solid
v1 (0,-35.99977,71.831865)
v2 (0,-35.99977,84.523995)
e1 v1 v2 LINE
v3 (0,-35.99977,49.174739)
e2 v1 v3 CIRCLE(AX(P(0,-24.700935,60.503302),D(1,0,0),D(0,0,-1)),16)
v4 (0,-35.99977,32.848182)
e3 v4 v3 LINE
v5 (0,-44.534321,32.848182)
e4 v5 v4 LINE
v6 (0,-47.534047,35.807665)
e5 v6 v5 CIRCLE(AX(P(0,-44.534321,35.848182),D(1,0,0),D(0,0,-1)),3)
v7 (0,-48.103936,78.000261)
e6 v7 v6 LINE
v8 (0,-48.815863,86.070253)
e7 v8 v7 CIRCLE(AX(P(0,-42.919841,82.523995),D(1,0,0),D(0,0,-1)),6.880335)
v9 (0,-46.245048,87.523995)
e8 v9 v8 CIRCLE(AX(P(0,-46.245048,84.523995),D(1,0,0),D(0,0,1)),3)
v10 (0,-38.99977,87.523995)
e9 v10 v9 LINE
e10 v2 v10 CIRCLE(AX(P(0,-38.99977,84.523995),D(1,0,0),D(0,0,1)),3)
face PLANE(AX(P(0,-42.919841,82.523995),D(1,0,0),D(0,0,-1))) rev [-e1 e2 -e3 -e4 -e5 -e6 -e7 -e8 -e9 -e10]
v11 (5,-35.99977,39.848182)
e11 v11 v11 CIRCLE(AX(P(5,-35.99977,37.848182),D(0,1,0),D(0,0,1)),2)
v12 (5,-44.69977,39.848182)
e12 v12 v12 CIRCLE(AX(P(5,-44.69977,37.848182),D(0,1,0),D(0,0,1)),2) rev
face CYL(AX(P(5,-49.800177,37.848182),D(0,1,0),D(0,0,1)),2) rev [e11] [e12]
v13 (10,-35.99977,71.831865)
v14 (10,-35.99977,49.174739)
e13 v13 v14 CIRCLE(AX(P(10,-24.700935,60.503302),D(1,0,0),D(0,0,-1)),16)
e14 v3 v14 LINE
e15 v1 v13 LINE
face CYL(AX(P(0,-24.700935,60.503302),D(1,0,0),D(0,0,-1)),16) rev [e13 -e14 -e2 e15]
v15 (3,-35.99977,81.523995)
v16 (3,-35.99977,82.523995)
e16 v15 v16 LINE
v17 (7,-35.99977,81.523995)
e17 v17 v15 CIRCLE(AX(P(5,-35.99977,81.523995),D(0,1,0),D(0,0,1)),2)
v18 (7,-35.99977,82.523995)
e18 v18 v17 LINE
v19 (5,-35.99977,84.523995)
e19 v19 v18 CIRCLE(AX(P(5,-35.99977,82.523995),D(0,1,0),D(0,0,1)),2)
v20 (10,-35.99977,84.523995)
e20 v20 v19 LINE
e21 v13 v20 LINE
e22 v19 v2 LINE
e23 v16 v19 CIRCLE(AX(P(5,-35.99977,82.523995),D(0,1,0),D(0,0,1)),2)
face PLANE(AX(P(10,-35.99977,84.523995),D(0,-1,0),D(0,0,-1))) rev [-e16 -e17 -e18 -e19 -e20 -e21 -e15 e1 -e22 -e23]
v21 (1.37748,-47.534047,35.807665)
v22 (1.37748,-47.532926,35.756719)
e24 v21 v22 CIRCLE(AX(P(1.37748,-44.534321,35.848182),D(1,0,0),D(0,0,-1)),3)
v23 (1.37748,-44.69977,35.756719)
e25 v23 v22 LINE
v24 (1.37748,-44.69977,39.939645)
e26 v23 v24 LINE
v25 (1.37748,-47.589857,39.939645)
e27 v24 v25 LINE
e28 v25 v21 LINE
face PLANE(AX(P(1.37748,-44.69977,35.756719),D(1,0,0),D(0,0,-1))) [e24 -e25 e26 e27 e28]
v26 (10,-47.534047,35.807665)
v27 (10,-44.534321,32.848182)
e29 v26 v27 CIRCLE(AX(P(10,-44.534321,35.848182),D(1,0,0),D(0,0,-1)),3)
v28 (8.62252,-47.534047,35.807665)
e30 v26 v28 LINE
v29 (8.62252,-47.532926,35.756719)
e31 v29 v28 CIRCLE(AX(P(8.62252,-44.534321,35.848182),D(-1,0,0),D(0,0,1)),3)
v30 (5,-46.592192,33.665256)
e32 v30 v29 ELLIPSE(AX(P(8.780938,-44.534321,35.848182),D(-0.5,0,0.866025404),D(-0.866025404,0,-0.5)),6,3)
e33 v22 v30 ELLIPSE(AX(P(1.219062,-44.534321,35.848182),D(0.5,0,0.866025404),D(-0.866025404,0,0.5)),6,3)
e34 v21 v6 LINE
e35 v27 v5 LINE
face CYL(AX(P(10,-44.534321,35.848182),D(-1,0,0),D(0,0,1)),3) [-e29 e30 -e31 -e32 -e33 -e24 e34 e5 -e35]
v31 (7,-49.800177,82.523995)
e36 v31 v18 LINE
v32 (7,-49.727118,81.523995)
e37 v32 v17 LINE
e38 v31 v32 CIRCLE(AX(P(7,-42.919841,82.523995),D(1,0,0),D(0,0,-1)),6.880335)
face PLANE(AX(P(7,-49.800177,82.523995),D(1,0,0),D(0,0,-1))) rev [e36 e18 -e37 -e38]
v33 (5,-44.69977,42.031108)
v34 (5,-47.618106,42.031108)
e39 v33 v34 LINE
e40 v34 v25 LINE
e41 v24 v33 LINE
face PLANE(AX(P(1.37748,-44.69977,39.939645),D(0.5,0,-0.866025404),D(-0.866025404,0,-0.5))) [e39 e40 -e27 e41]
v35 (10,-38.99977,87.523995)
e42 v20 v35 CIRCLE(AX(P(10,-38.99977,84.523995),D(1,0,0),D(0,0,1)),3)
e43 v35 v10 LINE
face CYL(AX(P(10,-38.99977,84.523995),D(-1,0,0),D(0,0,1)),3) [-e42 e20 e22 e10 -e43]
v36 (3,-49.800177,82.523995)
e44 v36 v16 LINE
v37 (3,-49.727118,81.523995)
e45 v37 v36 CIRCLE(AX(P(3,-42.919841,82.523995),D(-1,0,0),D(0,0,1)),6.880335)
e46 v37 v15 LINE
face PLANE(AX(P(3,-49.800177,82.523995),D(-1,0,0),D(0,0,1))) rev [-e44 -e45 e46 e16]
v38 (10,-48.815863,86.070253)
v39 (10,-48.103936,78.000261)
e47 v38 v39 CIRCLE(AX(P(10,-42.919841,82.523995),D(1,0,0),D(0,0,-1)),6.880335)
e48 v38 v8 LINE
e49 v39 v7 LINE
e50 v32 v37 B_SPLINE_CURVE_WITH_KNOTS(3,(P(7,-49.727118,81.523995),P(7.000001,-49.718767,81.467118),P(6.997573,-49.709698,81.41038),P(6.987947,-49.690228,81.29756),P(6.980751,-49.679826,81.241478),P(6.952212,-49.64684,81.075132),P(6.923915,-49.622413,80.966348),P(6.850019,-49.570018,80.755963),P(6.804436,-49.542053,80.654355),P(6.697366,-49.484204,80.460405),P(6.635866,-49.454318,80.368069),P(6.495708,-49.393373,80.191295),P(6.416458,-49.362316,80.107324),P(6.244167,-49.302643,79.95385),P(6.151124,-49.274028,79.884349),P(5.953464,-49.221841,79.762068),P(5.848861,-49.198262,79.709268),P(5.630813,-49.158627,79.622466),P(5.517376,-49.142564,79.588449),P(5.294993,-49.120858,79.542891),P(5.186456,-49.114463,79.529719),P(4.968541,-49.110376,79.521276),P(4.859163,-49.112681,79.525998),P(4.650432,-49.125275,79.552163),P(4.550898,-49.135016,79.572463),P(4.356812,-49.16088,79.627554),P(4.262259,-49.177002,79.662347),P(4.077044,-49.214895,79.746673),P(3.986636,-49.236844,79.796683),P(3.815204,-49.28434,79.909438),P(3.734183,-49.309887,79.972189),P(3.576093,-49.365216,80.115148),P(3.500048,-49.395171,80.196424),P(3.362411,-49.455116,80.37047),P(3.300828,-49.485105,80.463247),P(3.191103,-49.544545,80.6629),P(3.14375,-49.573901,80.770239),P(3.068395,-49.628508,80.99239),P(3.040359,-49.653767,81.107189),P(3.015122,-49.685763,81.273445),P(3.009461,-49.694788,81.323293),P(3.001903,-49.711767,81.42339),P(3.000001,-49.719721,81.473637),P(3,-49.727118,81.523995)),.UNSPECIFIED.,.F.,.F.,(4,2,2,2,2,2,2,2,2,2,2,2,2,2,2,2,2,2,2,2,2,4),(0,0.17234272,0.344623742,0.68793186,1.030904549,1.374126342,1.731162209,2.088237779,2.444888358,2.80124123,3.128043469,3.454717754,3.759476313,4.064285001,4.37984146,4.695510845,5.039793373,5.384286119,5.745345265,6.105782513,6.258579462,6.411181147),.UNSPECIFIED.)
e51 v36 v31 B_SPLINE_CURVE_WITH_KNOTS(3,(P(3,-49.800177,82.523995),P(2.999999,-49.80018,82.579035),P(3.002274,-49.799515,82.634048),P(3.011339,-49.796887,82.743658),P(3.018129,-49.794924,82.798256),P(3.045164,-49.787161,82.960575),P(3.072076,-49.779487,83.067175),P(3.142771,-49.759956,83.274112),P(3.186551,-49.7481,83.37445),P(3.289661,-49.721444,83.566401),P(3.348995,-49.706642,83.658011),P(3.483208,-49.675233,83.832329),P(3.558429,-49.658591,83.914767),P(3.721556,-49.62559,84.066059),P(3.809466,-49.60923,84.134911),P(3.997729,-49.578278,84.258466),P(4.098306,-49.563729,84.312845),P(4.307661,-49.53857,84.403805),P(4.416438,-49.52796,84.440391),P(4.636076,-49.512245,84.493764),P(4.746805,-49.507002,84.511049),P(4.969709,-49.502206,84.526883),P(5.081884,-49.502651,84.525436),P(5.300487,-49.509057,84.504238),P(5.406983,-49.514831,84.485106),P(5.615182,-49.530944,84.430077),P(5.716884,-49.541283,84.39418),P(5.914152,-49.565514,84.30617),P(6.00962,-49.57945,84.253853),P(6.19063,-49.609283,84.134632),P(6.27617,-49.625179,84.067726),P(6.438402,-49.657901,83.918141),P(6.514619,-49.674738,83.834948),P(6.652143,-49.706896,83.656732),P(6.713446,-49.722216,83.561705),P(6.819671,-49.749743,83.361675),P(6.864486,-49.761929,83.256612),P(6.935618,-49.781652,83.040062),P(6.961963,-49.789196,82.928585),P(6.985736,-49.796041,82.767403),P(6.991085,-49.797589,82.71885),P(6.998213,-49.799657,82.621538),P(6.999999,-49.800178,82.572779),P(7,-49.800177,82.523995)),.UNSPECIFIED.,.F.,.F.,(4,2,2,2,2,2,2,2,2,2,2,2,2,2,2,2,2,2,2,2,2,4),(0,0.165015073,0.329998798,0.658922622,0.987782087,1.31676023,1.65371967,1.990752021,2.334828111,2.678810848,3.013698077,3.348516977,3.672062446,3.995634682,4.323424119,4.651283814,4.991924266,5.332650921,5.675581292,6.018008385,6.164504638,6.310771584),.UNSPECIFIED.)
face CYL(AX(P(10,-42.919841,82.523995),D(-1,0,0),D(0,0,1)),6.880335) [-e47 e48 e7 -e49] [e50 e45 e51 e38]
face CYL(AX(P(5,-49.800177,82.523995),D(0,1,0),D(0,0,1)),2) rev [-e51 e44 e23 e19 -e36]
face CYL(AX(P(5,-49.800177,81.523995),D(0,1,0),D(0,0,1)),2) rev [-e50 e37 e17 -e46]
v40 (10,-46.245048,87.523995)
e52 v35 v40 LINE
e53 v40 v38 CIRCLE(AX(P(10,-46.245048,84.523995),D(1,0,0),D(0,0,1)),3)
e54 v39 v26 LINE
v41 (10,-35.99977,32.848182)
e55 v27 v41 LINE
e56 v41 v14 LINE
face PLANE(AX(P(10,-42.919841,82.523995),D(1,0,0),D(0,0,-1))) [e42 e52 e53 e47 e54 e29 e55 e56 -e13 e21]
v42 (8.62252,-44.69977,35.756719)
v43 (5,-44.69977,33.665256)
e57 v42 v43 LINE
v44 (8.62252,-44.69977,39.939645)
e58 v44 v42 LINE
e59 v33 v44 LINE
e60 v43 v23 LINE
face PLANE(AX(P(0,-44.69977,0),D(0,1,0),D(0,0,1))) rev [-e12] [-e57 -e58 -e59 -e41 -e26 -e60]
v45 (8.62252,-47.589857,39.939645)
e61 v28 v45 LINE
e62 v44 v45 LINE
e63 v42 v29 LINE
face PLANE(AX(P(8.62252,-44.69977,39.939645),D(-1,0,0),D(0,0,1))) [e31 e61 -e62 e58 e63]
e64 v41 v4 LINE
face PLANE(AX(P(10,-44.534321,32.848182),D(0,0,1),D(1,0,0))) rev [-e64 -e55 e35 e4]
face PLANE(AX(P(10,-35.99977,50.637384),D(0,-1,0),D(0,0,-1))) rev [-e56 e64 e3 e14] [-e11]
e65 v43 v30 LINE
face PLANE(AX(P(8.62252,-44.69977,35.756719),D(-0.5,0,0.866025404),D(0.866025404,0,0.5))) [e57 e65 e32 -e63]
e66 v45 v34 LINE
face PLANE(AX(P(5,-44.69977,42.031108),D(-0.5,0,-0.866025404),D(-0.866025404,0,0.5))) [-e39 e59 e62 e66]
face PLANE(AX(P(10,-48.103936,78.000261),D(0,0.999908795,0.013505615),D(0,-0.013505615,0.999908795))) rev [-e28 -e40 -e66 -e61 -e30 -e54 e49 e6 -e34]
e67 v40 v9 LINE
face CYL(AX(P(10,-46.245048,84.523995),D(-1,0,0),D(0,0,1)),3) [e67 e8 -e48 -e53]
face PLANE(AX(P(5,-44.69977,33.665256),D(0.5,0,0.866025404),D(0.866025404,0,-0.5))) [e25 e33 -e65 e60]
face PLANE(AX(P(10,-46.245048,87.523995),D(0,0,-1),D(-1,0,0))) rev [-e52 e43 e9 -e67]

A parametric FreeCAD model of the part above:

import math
import FreeCAD as App
import Part
import Sketcher
Q = App.Units.Quantity

doc = App.newDocument("Part")
body = doc.addObject("PartDesign::Body", "Body")

sketch1 = body.newObject("Sketcher::SketchObject", "Sketch")
sketch1.AttachmentSupport = (doc.getObject("YZ_Plane"), [""])
sketch1.MapMode = "FlatFace"
sketch1.addGeometry(Part.LineSegment(App.Vector(-39, 87.5, 0), App.Vector(-46.2, 87.5, 0)), False)
sketch1.addGeometry(Part.ArcOfCircle(Part.Circle(App.Vector(-46.2, 84.5, 0), App.Vector(0, 0, 1), 3), math.radians(90), math.radians(149)), False)
sketch1.addGeometry(Part.ArcOfCircle(Part.Circle(App.Vector(-42.9, 82.5, 0), App.Vector(0, 0, 1), 6.9), math.radians(149), math.radians(221)), False)
sketch1.addGeometry(Part.LineSegment(App.Vector(-48.1, 78, 0), App.Vector(-47.5, 35.8, 0)), False)
sketch1.addGeometry(Part.ArcOfCircle(Part.Circle(App.Vector(-44.5, 35.8, 0), App.Vector(0, 0, 1), 3), math.radians(-179), math.radians(-90)), False)
sketch1.addGeometry(Part.LineSegment(App.Vector(-44.5, 32.8, 0), App.Vector(-36, 32.8, 0)), False)
sketch1.addGeometry(Part.LineSegment(App.Vector(-36, 32.8, 0), App.Vector(-36, 50.6, 0)), False)
sketch1.addGeometry(Part.ArcOfCircle(Part.Circle(App.Vector(-24.7, 60.5, 0), App.Vector(0, 0, 1), 15), math.radians(139), math.radians(221)), False)
sketch1.addGeometry(Part.LineSegment(App.Vector(-36, 70.4, 0), App.Vector(-36, 84.5, 0)), False)
sketch1.addGeometry(Part.ArcOfCircle(Part.Circle(App.Vector(-39, 84.5, 0), App.Vector(0, 0, 1), 3), math.radians(0), math.radians(90)), False)
sketch1.addConstraint(Sketcher.Constraint("Tangent", 0, 2, 1, 1))
sketch1.addConstraint(Sketcher.Constraint("Tangent", 1, 2, 2, 1))
sketch1.addConstraint(Sketcher.Constraint("Coincident", 2, 2, 3, 1))
sketch1.addConstraint(Sketcher.Constraint("Tangent", 3, 2, 4, 1))
sketch1.addConstraint(Sketcher.Constraint("Tangent", 4, 2, 5, 1))
sketch1.addConstraint(Sketcher.Constraint("Coincident", 5, 2, 6, 1))
sketch1.addConstraint(Sketcher.Constraint("Coincident", 6, 2, 7, 2))
sketch1.addConstraint(Sketcher.Constraint("Coincident", 7, 1, 8, 1))
sketch1.addConstraint(Sketcher.Constraint("Tangent", 8, 2, 9, 1))
sketch1.addConstraint(Sketcher.Constraint("Tangent", 9, 2, 0, 1))
sketch1.addConstraint(Sketcher.Constraint("Horizontal", 0))
sketch1.addConstraint(Sketcher.Constraint("Horizontal", 5))
sketch1.addConstraint(Sketcher.Constraint("Vertical", 6))
sketch1.addConstraint(Sketcher.Constraint("Vertical", 8))
sketch1.addConstraint(Sketcher.Constraint("Equal", 1, 4))
sketch1.addConstraint(Sketcher.Constraint("Equal", 4, 9))
sketch1.addConstraint(Sketcher.Constraint("Vertical", 6, 2, 7, 1))
sketch1.addConstraint(Sketcher.Constraint("Radius", 1, 3.0))
sketch1.addConstraint(Sketcher.Constraint("Radius", 7, 15.0))
sketch1.addConstraint(Sketcher.Constraint("DistanceY", 2, 3, 1, 3, 2.0))
sketch1.addConstraint(Sketcher.Constraint("Radius", 2, 6.880335))
sketch1.addConstraint(Sketcher.Constraint("DistanceX", 3, 2, 1, 3, 1.288999))
sketch1.addConstraint(Sketcher.Constraint("DistanceX", 0, 2, 0, 1, 7.245278))
sketch1.addConstraint(Sketcher.Constraint("DistanceY", 6, 1, 6, 2, 17.789202))
sketch1.addConstraint(Sketcher.Constraint("DistanceY", 8, 1, 8, 2, 14.154776))
sketch1.addConstraint(Sketcher.Constraint("DistanceX", 1, 3, -1, 1, 46.245048))
sketch1.addConstraint(Sketcher.Constraint("DistanceY", -1, 1, 2, 2, 78.000261))
sketch1.addConstraint(Sketcher.Constraint("DistanceY", -1, 1, 7, 1, 70.36922))
sketch1.addConstraint(Sketcher.Constraint("DistanceY", 4, 3, 7, 3, 24.65512))
pad1 = body.newObject("PartDesign::Pad", "Pad")
pad1.Profile = sketch1
pad1.Length = 10

sketch2 = body.newObject("Sketcher::SketchObject", "Sketch001")
sketch2.AttachmentSupport = (doc.getObject("XZ_Plane"), [""])
sketch2.MapMode = "FlatFace"
sketch2.AttachmentOffset = App.Placement(App.Vector(0, 0, 35.99977), App.Rotation())
sketch2.addGeometry(Part.LineSegment(App.Vector(3, 81.5, 0), App.Vector(3, 82.5, 0)), False)
sketch2.addGeometry(Part.ArcOfCircle(Part.Circle(App.Vector(5, 82.5, 0), App.Vector(0, 0, 1), 2), math.radians(0), math.radians(180)), False)
sketch2.addGeometry(Part.LineSegment(App.Vector(7, 82.5, 0), App.Vector(7, 81.5, 0)), False)
sketch2.addGeometry(Part.ArcOfCircle(Part.Circle(App.Vector(5, 81.5, 0), App.Vector(0, 0, 1), 2), math.radians(180), math.radians(360)), False)
sketch2.addConstraint(Sketcher.Constraint("Tangent", 0, 2, 1, 2))
sketch2.addConstraint(Sketcher.Constraint("Tangent", 1, 1, 2, 1))
sketch2.addConstraint(Sketcher.Constraint("Tangent", 2, 2, 3, 2))
sketch2.addConstraint(Sketcher.Constraint("Tangent", 3, 1, 0, 1))
sketch2.addConstraint(Sketcher.Constraint("Vertical", 0))
sketch2.addConstraint(Sketcher.Constraint("Vertical", 2))
sketch2.addConstraint(Sketcher.Constraint("Radius", 1, 2.0))
sketch2.addConstraint(Sketcher.Constraint("DistanceY", 0, 1, 0, 2, 1.0))
sketch2.addConstraint(Sketcher.Constraint("DistanceX", -1, 1, 1, 3, 5.0))
sketch2.addConstraint(Sketcher.Constraint("DistanceY", -1, 1, 1, 3, 82.523995))
pocket1 = body.newObject("PartDesign::Pocket", "Pocket")
pocket1.Profile = sketch2
pocket1.Type = "ThroughAll"
pocket1.Reversed = True

sketch3 = body.newObject("Sketcher::SketchObject", "Sketch002")
sketch3.AttachmentSupport = (doc.getObject("XZ_Plane"), [""])
sketch3.MapMode = "FlatFace"
sketch3.AttachmentOffset = App.Placement(App.Vector(0, 0, 35.99977), App.Rotation())
sketch3.addGeometry(Part.Circle(App.Vector(5, 37.8, 0), App.Vector(0, 0, 1), 2), False)
sketch3.addConstraint(Sketcher.Constraint("Diameter", 0, 4.0))
sketch3.addConstraint(Sketcher.Constraint("DistanceX", -1, 1, 0, 3, 5.0))
sketch3.addConstraint(Sketcher.Constraint("DistanceY", -1, 1, 0, 3, 37.848182))
pocket2 = body.newObject("PartDesign::Pocket", "Pocket001")
pocket2.Profile = sketch3
pocket2.Type = "ThroughAll"
pocket2.Reversed = True

sketch4 = body.newObject("Sketcher::SketchObject", "Sketch003")
sketch4.AttachmentSupport = (doc.getObject("XZ_Plane"), [""])
sketch4.MapMode = "FlatFace"
sketch4.AttachmentOffset = App.Placement(App.Vector(0, 0, 47.99977), App.Rotation())
sketch4.addGeometry(Part.LineSegment(App.Vector(5, 33.7, 0), App.Vector(1.4, 35.8, 0)), False)
sketch4.addGeometry(Part.LineSegment(App.Vector(1.4, 35.8, 0), App.Vector(1.4, 39.9, 0)), False)
sketch4.addGeometry(Part.LineSegment(App.Vector(1.4, 39.9, 0), App.Vector(5, 42, 0)), False)
sketch4.addGeometry(Part.LineSegment(App.Vector(5, 42, 0), App.Vector(8.6, 39.9, 0)), False)
sketch4.addGeometry(Part.LineSegment(App.Vector(8.6, 39.9, 0), App.Vector(8.6, 35.8, 0)), False)
sketch4.addGeometry(Part.LineSegment(App.Vector(8.6, 35.8, 0), App.Vector(5, 33.7, 0)), False)
sketch4.addConstraint(Sketcher.Constraint("Coincident", 0, 2, 1, 1))
sketch4.addConstraint(Sketcher.Constraint("Coincident", 1, 2, 2, 1))
sketch4.addConstraint(Sketcher.Constraint("Coincident", 2, 2, 3, 1))
sketch4.addConstraint(Sketcher.Constraint("Coincident", 3, 2, 4, 1))
sketch4.addConstraint(Sketcher.Constraint("Coincident", 4, 2, 5, 1))
sketch4.addConstraint(Sketcher.Constraint("Coincident", 5, 2, 0, 1))
sketch4.addConstraint(Sketcher.Constraint("Vertical", 1))
sketch4.addConstraint(Sketcher.Constraint("Vertical", 4))
sketch4.addConstraint(Sketcher.Constraint("Parallel", 0, 3))
sketch4.addConstraint(Sketcher.Constraint("Parallel", 2, 5))
sketch4.addConstraint(Sketcher.Constraint("Horizontal", 1, 2, 3, 2))
sketch4.addConstraint(Sketcher.Constraint("Horizontal", 0, 2, 4, 2))
sketch4.addConstraint(Sketcher.Constraint("Vertical", 2, 2, 5, 2))
sketch4.addConstraint(Sketcher.Constraint("Angle", 0, Q("150 deg")))
sketch4.addConstraint(Sketcher.Constraint("DistanceX", -1, 1, 2, 2, 5.0))
sketch4.addConstraint(Sketcher.Constraint("DistanceY", 1, 1, 1, 2, 4.182926))
sketch4.addConstraint(Sketcher.Constraint("DistanceX", -1, 1, 0, 2, 1.37748))
sketch4.addConstraint(Sketcher.Constraint("DistanceY", -1, 1, 0, 2, 35.756719))
pocket3 = body.newObject("PartDesign::Pocket", "Pocket002")
pocket3.Profile = sketch4
pocket3.Length = 3.3

sketch5 = body.newObject("Sketcher::SketchObject", "Sketch004")
sketch5.AttachmentSupport = (doc.getObject("YZ_Plane"), [""])
sketch5.MapMode = "FlatFace"
sketch5.AttachmentOffset = App.Placement(App.Vector(0, 0, 10), App.Rotation())
sketch5.addGeometry(Part.ArcOfCircle(Part.Circle(App.Vector(-25, 61, 0), App.Vector(0, 0, 1), 16), math.radians(135), math.radians(225)), False)
sketch5.addGeometry(Part.LineSegment(App.Vector(-36, 49, 0), App.Vector(-36, 72, 0)), False)
sketch5.addConstraint(Sketcher.Constraint("Coincident", 0, 1, 1, 2))
sketch5.addConstraint(Sketcher.Constraint("Coincident", 1, 1, 0, 2))
sketch5.addConstraint(Sketcher.Constraint("Vertical", 1))
sketch5.addConstraint(Sketcher.Constraint("Radius", 0, 16.0))
sketch5.addConstraint(Sketcher.Constraint("DistanceY", 1, 1, 1, 2, 22.657125))
sketch5.addConstraint(Sketcher.Constraint("DistanceX", 0, 1, -1, 1, 35.99977))
sketch5.addConstraint(Sketcher.Constraint("DistanceY", -1, 1, 1, 1, 49.174739))
pocket4 = body.newObject("PartDesign::Pocket", "Pocket003")
pocket4.Profile = sketch5
pocket4.Type = "ThroughAll"

doc.recompute()
